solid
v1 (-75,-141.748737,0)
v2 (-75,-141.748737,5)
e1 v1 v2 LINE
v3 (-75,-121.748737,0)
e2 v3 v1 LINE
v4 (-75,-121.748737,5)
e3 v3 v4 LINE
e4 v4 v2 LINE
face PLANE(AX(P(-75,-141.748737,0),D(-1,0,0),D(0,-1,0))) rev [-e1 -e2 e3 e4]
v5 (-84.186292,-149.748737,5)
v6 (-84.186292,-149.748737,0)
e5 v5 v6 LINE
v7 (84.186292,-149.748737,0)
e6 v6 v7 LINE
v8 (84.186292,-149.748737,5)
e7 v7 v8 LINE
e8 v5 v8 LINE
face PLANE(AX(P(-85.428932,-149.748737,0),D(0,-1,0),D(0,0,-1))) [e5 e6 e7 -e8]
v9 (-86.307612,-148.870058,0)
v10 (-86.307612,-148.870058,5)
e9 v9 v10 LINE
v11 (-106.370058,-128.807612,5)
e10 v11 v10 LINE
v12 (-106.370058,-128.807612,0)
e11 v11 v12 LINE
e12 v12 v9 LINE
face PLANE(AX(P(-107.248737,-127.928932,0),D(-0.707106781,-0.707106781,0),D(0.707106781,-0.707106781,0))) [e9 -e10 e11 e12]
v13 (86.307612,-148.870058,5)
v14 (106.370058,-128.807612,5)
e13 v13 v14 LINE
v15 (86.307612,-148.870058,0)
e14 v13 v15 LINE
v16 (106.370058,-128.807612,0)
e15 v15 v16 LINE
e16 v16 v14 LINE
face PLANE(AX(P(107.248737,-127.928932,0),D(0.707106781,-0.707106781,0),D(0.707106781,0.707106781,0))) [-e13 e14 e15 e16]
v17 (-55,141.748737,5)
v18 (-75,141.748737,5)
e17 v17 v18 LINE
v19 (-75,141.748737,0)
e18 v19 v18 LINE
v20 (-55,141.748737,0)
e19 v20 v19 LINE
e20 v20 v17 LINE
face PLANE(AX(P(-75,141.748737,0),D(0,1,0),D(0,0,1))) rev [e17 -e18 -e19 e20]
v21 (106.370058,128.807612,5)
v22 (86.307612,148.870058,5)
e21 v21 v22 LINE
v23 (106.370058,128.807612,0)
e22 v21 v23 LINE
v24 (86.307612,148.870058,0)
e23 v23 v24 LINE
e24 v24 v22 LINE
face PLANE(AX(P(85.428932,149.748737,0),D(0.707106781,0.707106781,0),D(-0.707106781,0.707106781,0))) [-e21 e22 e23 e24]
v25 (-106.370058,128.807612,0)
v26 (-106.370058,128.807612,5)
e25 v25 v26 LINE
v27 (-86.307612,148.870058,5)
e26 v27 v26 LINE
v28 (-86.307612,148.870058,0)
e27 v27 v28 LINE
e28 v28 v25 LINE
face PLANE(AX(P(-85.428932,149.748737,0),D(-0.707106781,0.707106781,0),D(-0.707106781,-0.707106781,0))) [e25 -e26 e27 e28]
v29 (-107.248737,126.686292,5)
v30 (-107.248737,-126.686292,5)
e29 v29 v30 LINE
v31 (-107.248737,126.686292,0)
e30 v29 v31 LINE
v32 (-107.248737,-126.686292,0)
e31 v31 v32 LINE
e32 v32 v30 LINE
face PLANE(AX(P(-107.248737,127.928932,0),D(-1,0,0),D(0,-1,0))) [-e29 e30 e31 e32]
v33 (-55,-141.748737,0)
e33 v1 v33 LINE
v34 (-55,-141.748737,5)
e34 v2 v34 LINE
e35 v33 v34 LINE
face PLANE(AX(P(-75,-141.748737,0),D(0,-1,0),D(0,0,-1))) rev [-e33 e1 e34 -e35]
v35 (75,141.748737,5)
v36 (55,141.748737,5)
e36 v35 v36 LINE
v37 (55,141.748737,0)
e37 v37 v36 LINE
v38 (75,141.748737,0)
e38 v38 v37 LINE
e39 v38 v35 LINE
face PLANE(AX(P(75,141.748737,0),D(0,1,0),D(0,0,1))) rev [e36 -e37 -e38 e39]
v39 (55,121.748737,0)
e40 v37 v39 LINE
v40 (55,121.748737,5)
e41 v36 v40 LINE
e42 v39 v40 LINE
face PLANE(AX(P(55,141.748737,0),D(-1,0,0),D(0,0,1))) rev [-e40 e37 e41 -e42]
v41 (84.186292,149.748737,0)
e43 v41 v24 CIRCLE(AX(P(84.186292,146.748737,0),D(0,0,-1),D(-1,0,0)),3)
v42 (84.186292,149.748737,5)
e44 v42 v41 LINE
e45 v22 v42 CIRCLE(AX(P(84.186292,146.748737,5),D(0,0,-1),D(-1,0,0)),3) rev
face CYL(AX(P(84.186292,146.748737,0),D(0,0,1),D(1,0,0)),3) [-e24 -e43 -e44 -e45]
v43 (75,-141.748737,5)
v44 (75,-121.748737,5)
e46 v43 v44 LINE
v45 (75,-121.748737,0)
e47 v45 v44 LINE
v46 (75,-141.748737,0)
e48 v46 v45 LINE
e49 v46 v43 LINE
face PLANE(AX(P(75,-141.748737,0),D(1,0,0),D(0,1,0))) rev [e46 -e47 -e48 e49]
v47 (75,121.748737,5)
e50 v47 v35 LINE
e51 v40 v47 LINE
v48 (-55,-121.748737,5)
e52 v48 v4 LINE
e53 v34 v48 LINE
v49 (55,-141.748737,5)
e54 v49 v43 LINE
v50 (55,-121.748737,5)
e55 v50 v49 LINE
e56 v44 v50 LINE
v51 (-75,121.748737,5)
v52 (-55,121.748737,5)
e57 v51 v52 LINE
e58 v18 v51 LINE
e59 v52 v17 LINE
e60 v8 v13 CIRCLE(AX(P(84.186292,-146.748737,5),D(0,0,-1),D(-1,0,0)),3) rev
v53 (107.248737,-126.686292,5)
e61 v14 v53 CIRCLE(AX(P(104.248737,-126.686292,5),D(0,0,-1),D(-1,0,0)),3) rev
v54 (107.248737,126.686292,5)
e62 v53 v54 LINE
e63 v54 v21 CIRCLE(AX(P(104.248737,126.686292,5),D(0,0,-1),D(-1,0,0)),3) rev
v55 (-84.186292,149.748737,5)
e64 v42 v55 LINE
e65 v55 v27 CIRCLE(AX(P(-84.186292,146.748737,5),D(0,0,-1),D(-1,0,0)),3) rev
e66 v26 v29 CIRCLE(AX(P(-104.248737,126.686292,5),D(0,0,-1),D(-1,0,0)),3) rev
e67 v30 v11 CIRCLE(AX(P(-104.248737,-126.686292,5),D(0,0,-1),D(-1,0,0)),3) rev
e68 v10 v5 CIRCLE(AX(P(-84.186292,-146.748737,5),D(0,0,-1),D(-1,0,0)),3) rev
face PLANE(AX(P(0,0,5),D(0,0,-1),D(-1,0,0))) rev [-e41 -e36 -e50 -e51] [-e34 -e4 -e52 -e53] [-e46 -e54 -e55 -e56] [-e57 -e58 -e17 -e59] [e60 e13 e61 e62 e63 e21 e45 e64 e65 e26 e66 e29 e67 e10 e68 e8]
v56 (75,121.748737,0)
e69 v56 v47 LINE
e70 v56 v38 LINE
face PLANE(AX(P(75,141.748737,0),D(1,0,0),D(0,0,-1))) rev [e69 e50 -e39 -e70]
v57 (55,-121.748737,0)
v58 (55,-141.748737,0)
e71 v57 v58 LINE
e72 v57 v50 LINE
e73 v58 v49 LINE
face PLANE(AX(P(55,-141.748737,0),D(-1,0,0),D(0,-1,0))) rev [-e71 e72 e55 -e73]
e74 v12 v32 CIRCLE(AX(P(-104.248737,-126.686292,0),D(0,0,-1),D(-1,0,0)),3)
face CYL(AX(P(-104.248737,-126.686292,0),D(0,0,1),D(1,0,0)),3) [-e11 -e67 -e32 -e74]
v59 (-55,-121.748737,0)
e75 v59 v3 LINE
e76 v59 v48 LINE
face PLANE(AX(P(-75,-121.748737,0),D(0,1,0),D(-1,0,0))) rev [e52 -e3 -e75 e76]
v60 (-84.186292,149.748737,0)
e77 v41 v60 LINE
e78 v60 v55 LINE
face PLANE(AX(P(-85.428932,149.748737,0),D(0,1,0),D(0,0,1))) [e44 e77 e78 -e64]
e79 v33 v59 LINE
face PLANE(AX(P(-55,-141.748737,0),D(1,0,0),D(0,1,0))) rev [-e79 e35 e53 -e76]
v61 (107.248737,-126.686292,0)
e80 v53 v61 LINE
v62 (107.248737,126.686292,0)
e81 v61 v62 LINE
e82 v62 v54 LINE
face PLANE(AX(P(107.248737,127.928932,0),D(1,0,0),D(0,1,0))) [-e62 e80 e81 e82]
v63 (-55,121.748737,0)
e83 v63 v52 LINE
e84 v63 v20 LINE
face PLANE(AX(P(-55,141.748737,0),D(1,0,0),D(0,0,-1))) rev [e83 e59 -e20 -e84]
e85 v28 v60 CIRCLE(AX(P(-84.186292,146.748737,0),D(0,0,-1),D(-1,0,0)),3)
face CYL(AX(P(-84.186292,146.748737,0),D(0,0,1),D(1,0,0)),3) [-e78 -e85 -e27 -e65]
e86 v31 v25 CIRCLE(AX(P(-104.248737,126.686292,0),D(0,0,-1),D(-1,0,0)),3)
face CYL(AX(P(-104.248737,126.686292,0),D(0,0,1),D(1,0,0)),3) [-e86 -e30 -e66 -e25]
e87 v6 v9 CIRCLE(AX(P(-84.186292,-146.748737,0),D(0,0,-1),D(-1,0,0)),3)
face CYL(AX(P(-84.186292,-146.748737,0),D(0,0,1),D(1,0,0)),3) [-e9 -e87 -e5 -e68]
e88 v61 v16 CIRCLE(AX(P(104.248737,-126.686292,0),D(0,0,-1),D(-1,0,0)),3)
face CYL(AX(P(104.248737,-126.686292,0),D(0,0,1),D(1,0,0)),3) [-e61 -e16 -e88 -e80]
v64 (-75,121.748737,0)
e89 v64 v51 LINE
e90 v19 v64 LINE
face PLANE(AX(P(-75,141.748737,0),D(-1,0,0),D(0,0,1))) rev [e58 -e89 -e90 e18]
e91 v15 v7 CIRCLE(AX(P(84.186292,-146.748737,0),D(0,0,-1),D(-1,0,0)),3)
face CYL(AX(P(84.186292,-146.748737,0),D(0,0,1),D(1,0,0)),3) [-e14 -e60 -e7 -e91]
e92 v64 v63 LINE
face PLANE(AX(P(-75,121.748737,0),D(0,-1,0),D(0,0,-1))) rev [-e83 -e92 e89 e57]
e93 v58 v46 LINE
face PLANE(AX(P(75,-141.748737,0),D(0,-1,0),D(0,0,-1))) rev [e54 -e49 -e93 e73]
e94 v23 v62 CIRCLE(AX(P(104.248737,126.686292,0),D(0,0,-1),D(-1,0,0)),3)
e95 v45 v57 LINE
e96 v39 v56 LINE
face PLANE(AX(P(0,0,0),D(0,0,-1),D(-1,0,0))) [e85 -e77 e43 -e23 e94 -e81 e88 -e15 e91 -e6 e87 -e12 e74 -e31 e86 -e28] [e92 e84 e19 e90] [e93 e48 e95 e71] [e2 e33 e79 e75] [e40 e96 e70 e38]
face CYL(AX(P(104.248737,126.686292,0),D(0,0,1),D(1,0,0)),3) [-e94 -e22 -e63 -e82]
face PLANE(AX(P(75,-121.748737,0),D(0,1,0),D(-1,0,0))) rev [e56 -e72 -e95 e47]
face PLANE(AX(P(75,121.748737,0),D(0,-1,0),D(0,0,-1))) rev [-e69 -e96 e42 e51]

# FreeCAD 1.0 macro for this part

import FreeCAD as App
import Part
import Sketcher
from FreeCAD import Vector
Q = App.Units.Quantity


def edges_at(feature, points):
    """Names of the edges that pass closest to the given points."""
    edges = feature.Shape.Edges
    near = lambda p: min(range(len(edges)), key=lambda i: edges[i].distToShape(Part.Vertex(*p))[0])
    return sorted({f"Edge{near(p) + 1}" for p in points})


def add_polygon(sketch, points):
    """Adds a closed chain of lines whose ends are joined by coincident constraints."""
    first, n = sketch.GeometryCount, len(points)
    for a, b in zip(points, points[1:] + points[:1]):
        sketch.addGeometry(Part.LineSegment(App.Vector(*a, 0), App.Vector(*b, 0)), False)
    for i in range(n):
        sketch.addConstraint(Sketcher.Constraint("Coincident", first + i, 2, first + (i + 1) % n, 1))

doc = App.newDocument("Part")
params = doc.addObject("Spreadsheet::Sheet", "Params")
for row, (alias, value) in enumerate([
    ("sketch1_width", "175 mm"),
    ("sketch1_height", "260 mm"),
    ("sketch1_length", "35 mm"),
    ("pad1_length", "5 mm"),
    ("sketch2_width", "20 mm"),
    ("pocket1_length", "5 mm"),
    ("sketch3_width", "175 mm"),
    ("sketch3_height", "260 mm"),
    ("sketch3_length", "35 mm"),
    ("pocket2_length", "5 mm"),
    ("fillet_radius", "3 mm"),
], start=1):
    params.set(f"A{row}", alias)
    params.set(f"B{row}", "=" + value)
    params.setAlias(f"B{row}", alias)

body = doc.addObject("PartDesign::Body", "Body")

# Sketch on XY plane
sketch1 = doc.addObject("Sketcher::SketchObject", "Sketch")
body.addObject(sketch1)
sketch1.AttachmentSupport = (doc.XY_Plane, [""])
sketch1.MapMode = "FlatFace"
add_polygon(sketch1, [(-112.248737, -130), (-87.5, -154.748737), (87.5, -154.748737), (112.248737, -130), (112.248737, 130), (87.5, 154.748737), (-87.5, 154.748737), (-112.248737, 130)])  # lines 0-7
sketch1.addConstraint([
    Sketcher.Constraint("Horizontal", 1),
    Sketcher.Constraint("Vertical", 3),
    Sketcher.Constraint("Horizontal", 5),
    Sketcher.Constraint("Vertical", 7),
    Sketcher.Constraint("Symmetric", 0, 2, 4, 2, -1, 1),
    Sketcher.Constraint("Symmetric", 2, 2, 6, 2, -1, 1),
    Sketcher.Constraint("Perpendicular", 0, 2),
    Sketcher.Constraint("Perpendicular", 2, 4),
    Sketcher.Constraint("Perpendicular", 4, 6),
    Sketcher.Constraint("Horizontal", 3, 2, 6, 2),
    Sketcher.Constraint("Vertical", 1, 2, 4, 2),
    Sketcher.Constraint("DistanceX", 1, 1, 1, 2, Q("175 mm")),
    Sketcher.Constraint("DistanceY", 3, 1, 3, 2, Q("260 mm")),
    Sketcher.Constraint("Distance", 0, Q("35 mm")),
])
sketch1.setExpression("Constraints[19]", "Params.sketch1_width")
sketch1.setExpression("Constraints[20]", "Params.sketch1_height")
sketch1.setExpression("Constraints[21]", "Params.sketch1_length")
pad1 = doc.addObject("PartDesign::Pad", "Pad")
body.addObject(pad1)
pad1.Profile = sketch1
pad1.setExpression("Length", "Params.pad1_length")

# Sketch on XY plane
sketch2 = doc.addObject("Sketcher::SketchObject", "Sketch001")
body.addObject(sketch2)
sketch2.AttachmentSupport = (doc.XY_Plane, [""])
sketch2.MapMode = "FlatFace"
sketch2.AttachmentOffset = App.Placement(Vector(0, 0, 5), App.Rotation())
add_polygon(sketch2, [(-75, 141.748737), (-75, 121.748737), (-55, 121.748737), (-55, 141.748737)])  # lines 0-3
add_polygon(sketch2, [(-75, -121.748737), (-75, -141.748737), (-55, -141.748737), (-55, -121.748737)])  # lines 4-7
add_polygon(sketch2, [(55, -121.748737), (55, -141.748737), (75, -141.748737), (75, -121.748737)])  # lines 8-11
add_polygon(sketch2, [(55, 141.748737), (55, 121.748737), (75, 121.748737), (75, 141.748737)])  # lines 12-15
sketch2.addConstraint([
    Sketcher.Constraint("Vertical", 0),
    Sketcher.Constraint("Horizontal", 1),
    Sketcher.Constraint("Vertical", 2),
    Sketcher.Constraint("Horizontal", 3),
    Sketcher.Constraint("Vertical", 4),
    Sketcher.Constraint("Horizontal", 5),
    Sketcher.Constraint("Vertical", 6),
    Sketcher.Constraint("Horizontal", 7),
    Sketcher.Constraint("Vertical", 8),
    Sketcher.Constraint("Horizontal", 9),
    Sketcher.Constraint("Vertical", 10),
    Sketcher.Constraint("Horizontal", 11),
    Sketcher.Constraint("Vertical", 12),
    Sketcher.Constraint("Horizontal", 13),
    Sketcher.Constraint("Vertical", 14),
    Sketcher.Constraint("Horizontal", 15),
    Sketcher.Constraint("Symmetric", 2, 2, 8, 2, -1, 1),
    Sketcher.Constraint("Symmetric", 0, 2, 10, 2, -1, 1),
    Sketcher.Constraint("Symmetric", 6, 2, 12, 2, -1, 1),
    Sketcher.Constraint("Symmetric", 4, 2, 14, 2, -1, 1),
    Sketcher.Constraint("Symmetric", 5, 2, 8, 2, -2),
    Sketcher.Constraint("Symmetric", 7, 2, 10, 2, -2),
    Sketcher.Constraint("Equal", 15, 0),
    Sketcher.Constraint("DistanceX", 1, 1, 1, 2, Q("20 mm")),
    Sketcher.Constraint("DistanceX", 0, 2, -1, 1, Q("75 mm")),
    Sketcher.Constraint("DistanceY", -1, 1, 0, 2, Q("121.748737 mm")),
])
sketch2.setExpression("Constraints[39]", "Params.sketch2_width")
pocket1 = doc.addObject("PartDesign::Pocket", "Pocket")
body.addObject(pocket1)
pocket1.Profile = sketch2
pocket1.setExpression("Length", "Params.pocket1_length")

# Sketch on XY plane
sketch3 = doc.addObject("Sketcher::SketchObject", "Sketch002")
body.addObject(sketch3)
sketch3.AttachmentSupport = (doc.XY_Plane, [""])
sketch3.MapMode = "FlatFace"
sketch3.AttachmentOffset = App.Placement(Vector(0, 0, 5), App.Rotation())
add_polygon(sketch3, [(-87.5, 154.748737), (-112.248737, 130), (-112.248737, -130), (-87.5, -154.748737), (87.5, -154.748737), (112.248737, -130), (112.248737, 130), (87.5, 154.748737)])  # lines 0-7
add_polygon(sketch3, [(-107.248737, -127.928932), (-107.248737, 127.928932), (-85.428932, 149.748737), (85.428932, 149.748737), (107.248737, 127.928932), (107.248737, -127.928932), (85.428932, -149.748737), (-85.428932, -149.748737)])  # lines 8-15
sketch3.addConstraint([
    Sketcher.Constraint("Vertical", 1),
    Sketcher.Constraint("Horizontal", 3),
    Sketcher.Constraint("Vertical", 5),
    Sketcher.Constraint("Horizontal", 7),
    Sketcher.Constraint("Vertical", 8),
    Sketcher.Constraint("Horizontal", 10),
    Sketcher.Constraint("Vertical", 12),
    Sketcher.Constraint("Horizontal", 14),
    Sketcher.Constraint("Symmetric", 0, 2, 4, 2, -1, 1),
    Sketcher.Constraint("Symmetric", 2, 2, 6, 2, -1, 1),
    Sketcher.Constraint("Symmetric", 8, 2, 12, 2, -1, 1),
    Sketcher.Constraint("Symmetric", 9, 2, 13, 2, -1, 1),
    Sketcher.Constraint("Perpendicular", 0, 2),
    Sketcher.Constraint("Perpendicular", 2, 4),
    Sketcher.Constraint("Perpendicular", 4, 6),
    Sketcher.Constraint("Perpendicular", 6, 9),
    Sketcher.Constraint("Perpendicular", 9, 11),
    Sketcher.Constraint("Perpendicular", 13, 15),
    Sketcher.Constraint("Horizontal", 1, 2, 4, 2),
    Sketcher.Constraint("Horizontal", 8, 2, 11, 2),
    Sketcher.Constraint("Horizontal", 12, 2, 15, 2),
    Sketcher.Constraint("Vertical", 3, 2, 6, 2),
    Sketcher.Constraint("DistanceX", 3, 1, 3, 2, Q("175 mm")),
    Sketcher.Constraint("DistanceY", 1, 2, 1, 1, Q("260 mm")),
    Sketcher.Constraint("Distance", 0, Q("35 mm")),
    Sketcher.Constraint("DistanceX", 0, 2, 8, 2, Q("5 mm")),
    Sketcher.Constraint("DistanceY", 9, 2, 7, 2, Q("5 mm")),
    Sketcher.Constraint("DistanceX", 10, 1, 10, 2, Q("170.857864 mm")),
])
sketch3.setExpression("Constraints[38]", "Params.sketch3_width")
sketch3.setExpression("Constraints[39]", "Params.sketch3_height")
sketch3.setExpression("Constraints[40]", "Params.sketch3_length")
pocket2 = doc.addObject("PartDesign::Pocket", "Pocket001")
body.addObject(pocket2)
pocket2.Profile = sketch3
pocket2.setExpression("Length", "Params.pocket2_length")
doc.recompute()

fillet = doc.addObject("PartDesign::Fillet", "Fillet")
body.addObject(fillet)
fillet.Base = (pocket2, edges_at(pocket2, [
    (-85.429, 149.749, 2.5),
    (85.429, 149.749, 2.5),
    (107.249, 127.929, 2.5),
    (107.249, -127.929, 2.5),
    (85.429, -149.749, 2.5),
    (-85.429, -149.749, 2.5),
    (-107.249, -127.929, 2.5),
    (-107.249, 127.929, 2.5),
]))
fillet.setExpression("Radius", "Params.fillet_radius")

doc.recompute()
